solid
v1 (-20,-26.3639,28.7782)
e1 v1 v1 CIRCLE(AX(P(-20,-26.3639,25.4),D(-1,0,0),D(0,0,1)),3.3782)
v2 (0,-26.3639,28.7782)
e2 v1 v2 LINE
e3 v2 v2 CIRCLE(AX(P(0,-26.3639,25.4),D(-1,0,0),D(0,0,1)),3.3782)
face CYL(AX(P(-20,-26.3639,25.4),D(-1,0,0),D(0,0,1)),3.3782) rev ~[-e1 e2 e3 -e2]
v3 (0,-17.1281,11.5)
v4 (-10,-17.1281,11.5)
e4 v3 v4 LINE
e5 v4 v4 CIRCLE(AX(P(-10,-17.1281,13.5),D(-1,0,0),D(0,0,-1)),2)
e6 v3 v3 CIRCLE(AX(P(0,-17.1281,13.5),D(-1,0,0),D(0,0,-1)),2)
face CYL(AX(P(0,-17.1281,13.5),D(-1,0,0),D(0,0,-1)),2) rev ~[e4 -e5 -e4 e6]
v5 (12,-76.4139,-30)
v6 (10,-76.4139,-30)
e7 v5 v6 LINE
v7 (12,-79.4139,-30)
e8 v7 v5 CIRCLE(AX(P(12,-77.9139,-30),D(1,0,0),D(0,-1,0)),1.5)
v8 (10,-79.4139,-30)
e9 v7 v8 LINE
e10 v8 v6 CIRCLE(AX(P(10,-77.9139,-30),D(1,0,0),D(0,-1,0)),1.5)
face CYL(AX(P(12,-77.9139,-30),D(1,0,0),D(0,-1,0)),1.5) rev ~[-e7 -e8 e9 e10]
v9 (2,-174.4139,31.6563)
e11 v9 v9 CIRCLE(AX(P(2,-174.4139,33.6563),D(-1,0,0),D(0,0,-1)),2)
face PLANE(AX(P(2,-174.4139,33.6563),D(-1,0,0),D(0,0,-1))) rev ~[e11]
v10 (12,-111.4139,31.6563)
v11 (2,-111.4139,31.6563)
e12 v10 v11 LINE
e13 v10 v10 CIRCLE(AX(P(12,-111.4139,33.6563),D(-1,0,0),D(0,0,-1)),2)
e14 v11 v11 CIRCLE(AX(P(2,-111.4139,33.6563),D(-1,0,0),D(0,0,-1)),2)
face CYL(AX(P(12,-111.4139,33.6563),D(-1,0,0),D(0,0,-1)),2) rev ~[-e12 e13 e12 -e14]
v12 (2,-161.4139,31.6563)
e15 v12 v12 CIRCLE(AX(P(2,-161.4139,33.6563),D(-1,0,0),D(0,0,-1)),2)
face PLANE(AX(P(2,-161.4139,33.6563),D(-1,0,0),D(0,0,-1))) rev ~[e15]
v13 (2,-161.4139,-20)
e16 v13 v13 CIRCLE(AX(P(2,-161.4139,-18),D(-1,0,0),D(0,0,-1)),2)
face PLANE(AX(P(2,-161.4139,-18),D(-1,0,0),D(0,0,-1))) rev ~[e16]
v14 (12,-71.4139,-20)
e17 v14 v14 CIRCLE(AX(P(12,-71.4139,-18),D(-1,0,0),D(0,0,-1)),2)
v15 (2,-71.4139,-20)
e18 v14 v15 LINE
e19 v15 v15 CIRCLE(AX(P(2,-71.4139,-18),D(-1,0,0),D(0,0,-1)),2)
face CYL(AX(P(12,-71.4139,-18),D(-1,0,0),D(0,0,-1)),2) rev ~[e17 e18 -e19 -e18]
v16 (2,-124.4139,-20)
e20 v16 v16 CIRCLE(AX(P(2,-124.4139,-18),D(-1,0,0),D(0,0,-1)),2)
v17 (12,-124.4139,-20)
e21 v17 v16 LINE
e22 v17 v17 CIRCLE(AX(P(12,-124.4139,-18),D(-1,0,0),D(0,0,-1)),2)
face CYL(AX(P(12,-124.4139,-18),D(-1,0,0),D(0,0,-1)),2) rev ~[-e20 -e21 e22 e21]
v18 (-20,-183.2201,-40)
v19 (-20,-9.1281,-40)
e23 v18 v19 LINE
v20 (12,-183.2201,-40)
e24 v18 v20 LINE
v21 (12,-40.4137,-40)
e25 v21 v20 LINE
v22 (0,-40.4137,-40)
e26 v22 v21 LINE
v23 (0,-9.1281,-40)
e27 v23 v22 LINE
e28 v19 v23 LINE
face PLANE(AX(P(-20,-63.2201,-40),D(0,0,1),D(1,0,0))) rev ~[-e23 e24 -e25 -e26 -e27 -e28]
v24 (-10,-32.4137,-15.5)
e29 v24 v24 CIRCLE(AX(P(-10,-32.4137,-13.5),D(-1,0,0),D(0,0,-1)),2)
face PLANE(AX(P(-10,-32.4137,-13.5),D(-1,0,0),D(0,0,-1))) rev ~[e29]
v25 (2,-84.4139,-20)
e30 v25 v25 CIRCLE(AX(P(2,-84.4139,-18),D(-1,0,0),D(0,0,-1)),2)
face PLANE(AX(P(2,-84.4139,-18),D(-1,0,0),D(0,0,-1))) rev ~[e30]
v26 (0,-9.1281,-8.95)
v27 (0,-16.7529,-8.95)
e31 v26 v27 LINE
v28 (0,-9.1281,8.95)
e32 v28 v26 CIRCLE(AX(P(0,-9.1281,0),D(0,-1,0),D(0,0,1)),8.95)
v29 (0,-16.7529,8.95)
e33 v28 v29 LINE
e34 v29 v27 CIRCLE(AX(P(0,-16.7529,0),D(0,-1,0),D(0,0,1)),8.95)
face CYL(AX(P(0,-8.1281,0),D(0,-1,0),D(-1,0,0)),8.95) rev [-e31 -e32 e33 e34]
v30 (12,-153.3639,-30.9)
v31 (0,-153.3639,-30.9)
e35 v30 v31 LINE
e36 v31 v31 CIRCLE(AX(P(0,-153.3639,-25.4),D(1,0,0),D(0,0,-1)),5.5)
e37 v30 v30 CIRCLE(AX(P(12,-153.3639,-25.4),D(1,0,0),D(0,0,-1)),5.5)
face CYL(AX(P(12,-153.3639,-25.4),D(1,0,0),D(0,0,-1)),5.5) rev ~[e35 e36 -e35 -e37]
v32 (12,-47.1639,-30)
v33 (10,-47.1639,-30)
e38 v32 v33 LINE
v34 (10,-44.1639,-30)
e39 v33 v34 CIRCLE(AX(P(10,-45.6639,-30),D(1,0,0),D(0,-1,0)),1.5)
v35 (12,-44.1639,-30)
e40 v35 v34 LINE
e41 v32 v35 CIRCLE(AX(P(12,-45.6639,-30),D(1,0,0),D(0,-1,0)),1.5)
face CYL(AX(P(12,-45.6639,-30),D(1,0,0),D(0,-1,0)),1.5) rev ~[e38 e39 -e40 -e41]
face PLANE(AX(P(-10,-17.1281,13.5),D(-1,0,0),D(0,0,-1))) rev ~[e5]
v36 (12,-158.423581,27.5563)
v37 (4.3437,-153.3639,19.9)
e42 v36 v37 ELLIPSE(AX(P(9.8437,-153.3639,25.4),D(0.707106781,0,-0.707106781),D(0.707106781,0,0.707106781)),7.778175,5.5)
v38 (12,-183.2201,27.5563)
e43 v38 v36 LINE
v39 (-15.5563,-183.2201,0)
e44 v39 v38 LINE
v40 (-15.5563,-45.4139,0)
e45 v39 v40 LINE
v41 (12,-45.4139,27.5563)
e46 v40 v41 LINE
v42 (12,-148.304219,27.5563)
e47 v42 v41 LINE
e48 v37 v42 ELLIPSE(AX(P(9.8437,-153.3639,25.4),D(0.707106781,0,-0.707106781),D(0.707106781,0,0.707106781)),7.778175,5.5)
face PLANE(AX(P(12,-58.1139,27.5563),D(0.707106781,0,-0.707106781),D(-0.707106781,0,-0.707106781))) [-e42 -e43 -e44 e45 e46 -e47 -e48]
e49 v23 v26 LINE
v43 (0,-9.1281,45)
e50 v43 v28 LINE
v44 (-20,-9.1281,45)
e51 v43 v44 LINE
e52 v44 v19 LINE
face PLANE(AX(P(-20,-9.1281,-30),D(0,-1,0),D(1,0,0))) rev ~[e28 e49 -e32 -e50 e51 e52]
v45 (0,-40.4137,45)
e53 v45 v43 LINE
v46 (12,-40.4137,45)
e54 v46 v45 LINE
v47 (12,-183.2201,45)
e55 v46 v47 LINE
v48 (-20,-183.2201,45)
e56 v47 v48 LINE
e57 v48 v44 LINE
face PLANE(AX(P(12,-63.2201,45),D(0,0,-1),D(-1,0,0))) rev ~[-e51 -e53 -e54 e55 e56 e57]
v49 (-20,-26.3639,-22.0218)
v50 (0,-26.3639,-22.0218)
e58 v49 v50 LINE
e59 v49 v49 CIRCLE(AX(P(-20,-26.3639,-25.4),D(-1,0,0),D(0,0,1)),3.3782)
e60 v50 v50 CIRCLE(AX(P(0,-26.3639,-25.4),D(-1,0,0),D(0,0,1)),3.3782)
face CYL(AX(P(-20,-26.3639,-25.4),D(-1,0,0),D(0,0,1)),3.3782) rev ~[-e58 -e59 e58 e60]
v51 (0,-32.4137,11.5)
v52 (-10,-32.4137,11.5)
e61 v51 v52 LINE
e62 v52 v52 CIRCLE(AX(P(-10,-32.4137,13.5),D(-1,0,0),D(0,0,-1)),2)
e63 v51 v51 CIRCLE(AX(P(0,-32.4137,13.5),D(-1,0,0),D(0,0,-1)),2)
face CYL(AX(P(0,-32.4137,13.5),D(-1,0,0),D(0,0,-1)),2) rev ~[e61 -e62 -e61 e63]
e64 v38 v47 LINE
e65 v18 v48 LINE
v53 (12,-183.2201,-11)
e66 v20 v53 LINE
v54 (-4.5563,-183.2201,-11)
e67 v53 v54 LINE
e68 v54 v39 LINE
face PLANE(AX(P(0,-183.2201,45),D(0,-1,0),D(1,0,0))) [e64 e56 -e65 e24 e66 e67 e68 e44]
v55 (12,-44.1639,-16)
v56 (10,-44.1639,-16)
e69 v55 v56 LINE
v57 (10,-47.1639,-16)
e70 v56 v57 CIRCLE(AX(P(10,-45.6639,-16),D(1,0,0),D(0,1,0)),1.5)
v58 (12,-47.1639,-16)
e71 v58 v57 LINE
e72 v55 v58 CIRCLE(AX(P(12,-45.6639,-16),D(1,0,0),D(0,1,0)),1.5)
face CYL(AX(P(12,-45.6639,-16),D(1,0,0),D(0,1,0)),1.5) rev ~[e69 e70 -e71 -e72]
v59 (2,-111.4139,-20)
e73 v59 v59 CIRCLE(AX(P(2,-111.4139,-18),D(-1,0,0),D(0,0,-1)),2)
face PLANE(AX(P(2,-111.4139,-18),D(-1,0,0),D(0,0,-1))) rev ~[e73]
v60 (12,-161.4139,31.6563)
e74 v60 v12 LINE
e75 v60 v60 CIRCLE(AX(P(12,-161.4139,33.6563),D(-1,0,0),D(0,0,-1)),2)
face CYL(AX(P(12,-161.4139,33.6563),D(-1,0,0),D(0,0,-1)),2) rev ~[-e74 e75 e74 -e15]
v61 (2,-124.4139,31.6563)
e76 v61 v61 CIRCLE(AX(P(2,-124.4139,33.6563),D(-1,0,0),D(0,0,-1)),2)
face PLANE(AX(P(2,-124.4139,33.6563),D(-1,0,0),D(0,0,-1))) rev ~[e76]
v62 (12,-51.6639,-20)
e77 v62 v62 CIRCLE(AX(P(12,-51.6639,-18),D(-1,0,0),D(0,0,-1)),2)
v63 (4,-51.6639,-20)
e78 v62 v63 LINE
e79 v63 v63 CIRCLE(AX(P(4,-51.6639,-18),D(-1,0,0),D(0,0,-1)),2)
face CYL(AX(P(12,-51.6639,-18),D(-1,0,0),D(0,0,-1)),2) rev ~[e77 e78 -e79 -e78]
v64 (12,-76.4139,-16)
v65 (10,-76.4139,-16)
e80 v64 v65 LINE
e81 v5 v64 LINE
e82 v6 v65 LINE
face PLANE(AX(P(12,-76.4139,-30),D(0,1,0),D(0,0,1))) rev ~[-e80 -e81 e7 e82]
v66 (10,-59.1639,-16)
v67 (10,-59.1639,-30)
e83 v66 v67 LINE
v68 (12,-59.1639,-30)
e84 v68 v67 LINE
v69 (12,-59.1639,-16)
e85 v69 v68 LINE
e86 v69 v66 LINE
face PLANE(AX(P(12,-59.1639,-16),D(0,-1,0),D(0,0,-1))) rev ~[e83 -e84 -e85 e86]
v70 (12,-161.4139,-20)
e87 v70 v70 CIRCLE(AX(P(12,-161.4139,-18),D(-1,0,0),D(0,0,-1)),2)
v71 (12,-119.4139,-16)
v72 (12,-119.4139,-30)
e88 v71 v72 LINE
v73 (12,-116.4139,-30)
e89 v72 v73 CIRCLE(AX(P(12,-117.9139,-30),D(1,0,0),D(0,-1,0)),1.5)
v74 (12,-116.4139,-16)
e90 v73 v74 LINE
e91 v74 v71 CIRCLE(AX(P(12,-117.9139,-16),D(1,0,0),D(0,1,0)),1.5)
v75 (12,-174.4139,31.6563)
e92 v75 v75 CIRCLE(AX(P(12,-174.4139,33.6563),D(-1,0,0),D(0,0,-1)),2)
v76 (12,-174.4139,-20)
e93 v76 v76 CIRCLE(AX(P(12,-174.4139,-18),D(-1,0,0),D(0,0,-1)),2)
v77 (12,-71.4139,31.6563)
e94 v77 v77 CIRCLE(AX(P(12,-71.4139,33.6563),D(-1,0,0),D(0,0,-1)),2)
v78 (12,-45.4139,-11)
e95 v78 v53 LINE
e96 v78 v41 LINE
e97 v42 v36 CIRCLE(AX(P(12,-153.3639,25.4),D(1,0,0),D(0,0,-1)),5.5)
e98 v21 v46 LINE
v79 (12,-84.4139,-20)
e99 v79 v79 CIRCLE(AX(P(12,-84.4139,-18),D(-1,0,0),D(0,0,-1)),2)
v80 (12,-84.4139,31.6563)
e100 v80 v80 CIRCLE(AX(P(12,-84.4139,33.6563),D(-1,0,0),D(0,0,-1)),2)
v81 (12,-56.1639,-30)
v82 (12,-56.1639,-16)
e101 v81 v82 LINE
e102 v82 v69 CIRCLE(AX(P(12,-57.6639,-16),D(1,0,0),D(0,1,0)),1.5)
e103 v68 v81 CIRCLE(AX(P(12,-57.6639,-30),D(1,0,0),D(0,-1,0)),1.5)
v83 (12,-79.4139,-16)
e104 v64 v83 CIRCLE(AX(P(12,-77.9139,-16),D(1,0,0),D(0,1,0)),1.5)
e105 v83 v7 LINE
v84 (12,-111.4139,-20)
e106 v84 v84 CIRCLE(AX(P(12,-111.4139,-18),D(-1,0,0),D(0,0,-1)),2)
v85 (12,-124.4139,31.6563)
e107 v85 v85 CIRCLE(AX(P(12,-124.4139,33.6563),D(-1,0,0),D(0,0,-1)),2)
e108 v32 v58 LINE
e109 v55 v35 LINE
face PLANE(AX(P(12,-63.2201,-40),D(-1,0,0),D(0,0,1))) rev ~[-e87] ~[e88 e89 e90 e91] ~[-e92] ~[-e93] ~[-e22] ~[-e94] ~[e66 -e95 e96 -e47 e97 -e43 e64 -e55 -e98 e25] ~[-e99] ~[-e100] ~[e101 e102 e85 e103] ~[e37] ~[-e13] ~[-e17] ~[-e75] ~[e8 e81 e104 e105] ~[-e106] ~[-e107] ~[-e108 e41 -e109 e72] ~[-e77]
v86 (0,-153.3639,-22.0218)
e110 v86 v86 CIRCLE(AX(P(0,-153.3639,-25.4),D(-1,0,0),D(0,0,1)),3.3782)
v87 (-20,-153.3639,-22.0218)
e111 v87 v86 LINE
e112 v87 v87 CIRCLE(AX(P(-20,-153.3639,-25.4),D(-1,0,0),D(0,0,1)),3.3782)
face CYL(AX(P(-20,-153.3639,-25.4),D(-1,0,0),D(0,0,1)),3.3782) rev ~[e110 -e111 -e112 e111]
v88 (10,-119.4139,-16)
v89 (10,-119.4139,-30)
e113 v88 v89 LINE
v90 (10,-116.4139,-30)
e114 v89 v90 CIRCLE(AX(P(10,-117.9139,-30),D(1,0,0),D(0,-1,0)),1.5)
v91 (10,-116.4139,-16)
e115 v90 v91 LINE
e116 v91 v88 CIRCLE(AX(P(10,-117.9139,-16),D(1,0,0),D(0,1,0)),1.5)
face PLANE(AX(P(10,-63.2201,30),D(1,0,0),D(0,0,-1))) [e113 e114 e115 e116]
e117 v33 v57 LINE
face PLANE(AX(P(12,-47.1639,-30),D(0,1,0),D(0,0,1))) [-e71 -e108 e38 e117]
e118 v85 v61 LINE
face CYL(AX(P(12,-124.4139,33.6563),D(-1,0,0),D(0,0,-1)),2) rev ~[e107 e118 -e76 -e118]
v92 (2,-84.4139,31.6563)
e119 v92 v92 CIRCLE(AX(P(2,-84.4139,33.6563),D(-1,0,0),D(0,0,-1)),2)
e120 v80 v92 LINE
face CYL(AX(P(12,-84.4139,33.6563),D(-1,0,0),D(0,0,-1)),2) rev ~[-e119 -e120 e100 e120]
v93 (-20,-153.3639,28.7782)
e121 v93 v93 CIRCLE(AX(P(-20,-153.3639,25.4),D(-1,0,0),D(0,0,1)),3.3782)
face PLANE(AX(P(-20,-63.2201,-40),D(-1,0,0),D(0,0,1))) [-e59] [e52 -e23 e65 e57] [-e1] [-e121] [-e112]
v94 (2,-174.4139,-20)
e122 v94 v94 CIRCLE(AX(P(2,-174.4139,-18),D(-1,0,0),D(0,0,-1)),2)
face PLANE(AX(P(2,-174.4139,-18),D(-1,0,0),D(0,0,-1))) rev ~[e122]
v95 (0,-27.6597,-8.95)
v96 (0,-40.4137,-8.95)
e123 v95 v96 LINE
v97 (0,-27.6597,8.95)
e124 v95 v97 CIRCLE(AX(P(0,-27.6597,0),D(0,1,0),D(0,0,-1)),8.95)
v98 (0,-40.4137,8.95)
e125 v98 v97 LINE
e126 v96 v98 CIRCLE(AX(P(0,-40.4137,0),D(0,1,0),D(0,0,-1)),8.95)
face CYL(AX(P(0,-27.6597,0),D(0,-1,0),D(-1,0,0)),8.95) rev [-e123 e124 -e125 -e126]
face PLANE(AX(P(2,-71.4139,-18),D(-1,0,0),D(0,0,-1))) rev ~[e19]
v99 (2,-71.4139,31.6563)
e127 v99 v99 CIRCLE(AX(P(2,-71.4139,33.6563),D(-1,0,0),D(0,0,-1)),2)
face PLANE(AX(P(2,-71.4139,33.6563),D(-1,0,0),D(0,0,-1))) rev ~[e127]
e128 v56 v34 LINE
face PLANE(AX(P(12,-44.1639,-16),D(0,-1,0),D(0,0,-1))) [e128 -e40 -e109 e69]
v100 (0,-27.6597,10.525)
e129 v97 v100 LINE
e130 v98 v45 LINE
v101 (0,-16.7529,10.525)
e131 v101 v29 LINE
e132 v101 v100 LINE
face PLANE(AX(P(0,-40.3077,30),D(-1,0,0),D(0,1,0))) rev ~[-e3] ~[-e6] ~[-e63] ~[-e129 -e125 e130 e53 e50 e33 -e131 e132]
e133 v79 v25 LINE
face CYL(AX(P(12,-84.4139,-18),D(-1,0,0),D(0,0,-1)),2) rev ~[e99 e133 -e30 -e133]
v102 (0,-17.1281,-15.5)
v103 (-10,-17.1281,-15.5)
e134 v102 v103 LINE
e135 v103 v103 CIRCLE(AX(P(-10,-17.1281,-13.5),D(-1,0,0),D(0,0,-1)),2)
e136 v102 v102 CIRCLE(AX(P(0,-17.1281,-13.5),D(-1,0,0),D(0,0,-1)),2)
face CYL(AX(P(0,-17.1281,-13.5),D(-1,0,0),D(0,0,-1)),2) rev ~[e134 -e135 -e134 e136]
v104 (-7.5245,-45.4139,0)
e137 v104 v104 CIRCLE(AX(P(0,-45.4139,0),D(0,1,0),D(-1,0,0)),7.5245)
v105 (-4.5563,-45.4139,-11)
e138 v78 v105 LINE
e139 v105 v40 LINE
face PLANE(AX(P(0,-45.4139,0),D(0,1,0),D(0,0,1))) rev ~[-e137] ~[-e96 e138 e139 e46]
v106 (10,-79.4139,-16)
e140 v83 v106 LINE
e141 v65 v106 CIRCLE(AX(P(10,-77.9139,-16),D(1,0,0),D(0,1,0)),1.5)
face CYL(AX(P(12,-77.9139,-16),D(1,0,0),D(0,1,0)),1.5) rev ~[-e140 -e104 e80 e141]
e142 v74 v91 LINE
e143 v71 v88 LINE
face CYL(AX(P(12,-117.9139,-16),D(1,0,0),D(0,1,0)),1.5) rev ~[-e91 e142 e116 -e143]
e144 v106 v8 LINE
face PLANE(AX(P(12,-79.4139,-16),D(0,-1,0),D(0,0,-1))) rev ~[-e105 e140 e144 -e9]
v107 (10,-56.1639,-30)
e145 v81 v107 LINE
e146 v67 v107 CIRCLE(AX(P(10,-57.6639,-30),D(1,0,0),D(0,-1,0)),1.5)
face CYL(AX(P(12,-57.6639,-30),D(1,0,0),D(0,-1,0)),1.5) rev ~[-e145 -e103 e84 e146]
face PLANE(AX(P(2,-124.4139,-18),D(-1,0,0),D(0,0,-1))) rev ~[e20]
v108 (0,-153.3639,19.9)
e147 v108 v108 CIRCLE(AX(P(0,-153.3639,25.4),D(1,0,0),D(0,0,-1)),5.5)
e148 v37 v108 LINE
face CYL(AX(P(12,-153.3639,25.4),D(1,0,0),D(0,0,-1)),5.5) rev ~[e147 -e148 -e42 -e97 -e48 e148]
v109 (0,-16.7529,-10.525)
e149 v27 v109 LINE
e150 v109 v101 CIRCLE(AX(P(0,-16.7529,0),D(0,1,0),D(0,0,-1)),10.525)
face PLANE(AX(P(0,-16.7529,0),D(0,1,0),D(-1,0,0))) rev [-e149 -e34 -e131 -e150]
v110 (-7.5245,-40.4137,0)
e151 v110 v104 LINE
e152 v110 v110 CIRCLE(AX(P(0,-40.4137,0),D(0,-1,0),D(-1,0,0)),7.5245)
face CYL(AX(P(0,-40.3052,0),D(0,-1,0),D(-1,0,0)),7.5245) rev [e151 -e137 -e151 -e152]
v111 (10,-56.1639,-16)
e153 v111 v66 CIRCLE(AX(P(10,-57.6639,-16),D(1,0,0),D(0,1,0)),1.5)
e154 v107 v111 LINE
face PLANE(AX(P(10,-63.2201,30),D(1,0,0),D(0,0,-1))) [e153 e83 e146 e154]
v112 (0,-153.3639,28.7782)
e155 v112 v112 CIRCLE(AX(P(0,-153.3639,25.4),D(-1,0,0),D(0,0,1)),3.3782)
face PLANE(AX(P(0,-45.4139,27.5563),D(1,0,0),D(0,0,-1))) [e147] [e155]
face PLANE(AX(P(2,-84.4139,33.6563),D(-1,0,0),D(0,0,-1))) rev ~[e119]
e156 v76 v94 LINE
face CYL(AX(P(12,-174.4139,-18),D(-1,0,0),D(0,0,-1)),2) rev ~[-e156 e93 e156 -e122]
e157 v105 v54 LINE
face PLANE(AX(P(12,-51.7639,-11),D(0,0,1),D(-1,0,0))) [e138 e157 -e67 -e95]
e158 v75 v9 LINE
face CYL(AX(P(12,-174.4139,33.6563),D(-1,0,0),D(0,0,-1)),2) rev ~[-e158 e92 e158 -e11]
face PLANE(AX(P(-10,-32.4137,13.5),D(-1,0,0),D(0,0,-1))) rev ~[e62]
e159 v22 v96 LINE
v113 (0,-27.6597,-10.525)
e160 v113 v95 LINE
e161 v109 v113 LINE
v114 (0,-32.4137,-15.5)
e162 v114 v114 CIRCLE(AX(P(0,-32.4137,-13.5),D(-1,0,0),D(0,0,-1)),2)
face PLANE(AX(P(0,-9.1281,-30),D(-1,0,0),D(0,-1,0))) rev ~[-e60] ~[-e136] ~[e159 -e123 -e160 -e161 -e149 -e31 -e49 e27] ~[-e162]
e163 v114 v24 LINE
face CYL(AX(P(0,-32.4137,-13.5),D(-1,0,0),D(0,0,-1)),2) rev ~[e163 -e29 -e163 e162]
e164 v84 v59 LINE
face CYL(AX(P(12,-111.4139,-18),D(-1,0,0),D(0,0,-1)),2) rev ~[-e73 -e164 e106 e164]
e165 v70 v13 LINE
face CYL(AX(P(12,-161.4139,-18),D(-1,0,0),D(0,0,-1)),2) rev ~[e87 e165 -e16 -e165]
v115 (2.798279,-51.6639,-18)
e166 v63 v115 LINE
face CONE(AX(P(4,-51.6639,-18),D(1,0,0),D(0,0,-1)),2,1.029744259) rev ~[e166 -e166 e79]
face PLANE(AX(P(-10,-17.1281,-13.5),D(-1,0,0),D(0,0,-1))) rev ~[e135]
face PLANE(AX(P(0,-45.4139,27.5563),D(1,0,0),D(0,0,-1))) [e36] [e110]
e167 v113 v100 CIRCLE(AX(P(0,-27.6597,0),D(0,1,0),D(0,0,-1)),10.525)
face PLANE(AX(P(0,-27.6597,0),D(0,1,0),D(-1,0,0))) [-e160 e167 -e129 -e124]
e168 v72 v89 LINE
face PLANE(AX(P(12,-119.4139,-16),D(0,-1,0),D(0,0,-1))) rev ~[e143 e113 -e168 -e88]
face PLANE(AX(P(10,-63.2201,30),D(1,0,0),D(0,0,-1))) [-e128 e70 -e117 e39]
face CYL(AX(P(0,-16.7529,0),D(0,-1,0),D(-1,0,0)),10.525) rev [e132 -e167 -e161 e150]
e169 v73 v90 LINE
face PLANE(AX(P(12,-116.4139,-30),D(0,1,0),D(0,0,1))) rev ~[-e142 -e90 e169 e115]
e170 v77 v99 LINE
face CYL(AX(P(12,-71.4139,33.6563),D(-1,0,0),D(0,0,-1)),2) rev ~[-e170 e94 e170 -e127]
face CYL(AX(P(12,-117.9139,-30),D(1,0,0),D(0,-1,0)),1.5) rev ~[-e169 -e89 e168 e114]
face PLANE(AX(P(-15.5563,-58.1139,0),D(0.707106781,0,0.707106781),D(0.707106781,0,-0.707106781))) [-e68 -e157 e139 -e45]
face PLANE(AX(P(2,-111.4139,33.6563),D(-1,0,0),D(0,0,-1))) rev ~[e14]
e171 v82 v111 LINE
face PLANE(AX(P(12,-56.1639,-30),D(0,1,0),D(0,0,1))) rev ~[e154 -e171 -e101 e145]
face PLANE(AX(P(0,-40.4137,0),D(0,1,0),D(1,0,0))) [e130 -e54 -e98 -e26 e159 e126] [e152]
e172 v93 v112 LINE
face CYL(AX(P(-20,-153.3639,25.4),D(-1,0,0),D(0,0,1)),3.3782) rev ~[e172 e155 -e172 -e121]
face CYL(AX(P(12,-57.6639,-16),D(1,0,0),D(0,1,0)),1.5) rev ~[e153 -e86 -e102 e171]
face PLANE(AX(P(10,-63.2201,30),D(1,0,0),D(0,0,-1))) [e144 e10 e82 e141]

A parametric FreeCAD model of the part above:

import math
import FreeCAD as App
import Part
import Sketcher
from FreeCAD import Vector
Q = App.Units.Quantity


def add_polygon(sketch, points):
    """Adds a closed chain of lines whose ends are joined by coincident constraints."""
    first, n = sketch.GeometryCount, len(points)
    for a, b in zip(points, points[1:] + points[:1]):
        sketch.addGeometry(Part.LineSegment(App.Vector(*a, 0), App.Vector(*b, 0)), False)
    for i in range(n):
        sketch.addConstraint(Sketcher.Constraint("Coincident", first + i, 2, first + (i + 1) % n, 1))

doc = App.newDocument("Part")
body = doc.addObject("PartDesign::Body", "Body")

# Sketch on XY plane
sketch1 = body.newObject("Sketcher::SketchObject", "Sketch")
sketch1.AttachmentSupport = (doc.getObject("XY_Plane"), [""])
sketch1.MapMode = "FlatFace"
add_polygon(sketch1, [(0, -9), (-20, -9), (-20, -89), (0, -89), (0, -63), (12, -63), (12, -40), (0, -40)])  # lines 0-7
sketch1.addConstraint(Sketcher.Constraint("Horizontal", 0))
sketch1.addConstraint(Sketcher.Constraint("Vertical", 1))
sketch1.addConstraint(Sketcher.Constraint("Horizontal", 2))
sketch1.addConstraint(Sketcher.Constraint("Vertical", 3))
sketch1.addConstraint(Sketcher.Constraint("Horizontal", 4))
sketch1.addConstraint(Sketcher.Constraint("Vertical", 5))
sketch1.addConstraint(Sketcher.Constraint("Horizontal", 6))
sketch1.addConstraint(Sketcher.Constraint("Vertical", 7))
sketch1.addConstraint(Sketcher.Constraint("PointOnObject", 2, 2, -2))
sketch1.addConstraint(Sketcher.Constraint("PointOnObject", 6, 2, -2))
sketch1.addConstraint(Sketcher.Constraint("DistanceX", 0, 2, 0, 1, 20.0))
sketch1.addConstraint(Sketcher.Constraint("DistanceX", 4, 1, 4, 2, 12.0))
sketch1.addConstraint(Sketcher.Constraint("DistanceY", 1, 2, 1, 1, 80.0))
sketch1.addConstraint(Sketcher.Constraint("DistanceY", 3, 1, 3, 2, 25.908))
sketch1.addConstraint(Sketcher.Constraint("DistanceY", 3, 2, -1, 1, 63.22))
sketch1.addConstraint(Sketcher.Constraint("DistanceY", 5, 1, 5, 2, 22.9124))
pad1 = body.newObject("PartDesign::Pad", "Pad")
pad1.Profile = sketch1
pad1.Length = 60
pad1.Midplane = True

# Sketch on XZ plane
sketch2 = body.newObject("Sketcher::SketchObject", "Sketch001")
sketch2.AttachmentSupport = (doc.getObject("XZ_Plane"), [""])
sketch2.MapMode = "FlatFace"
sketch2.AttachmentOffset = App.Placement(Vector(0, 0, 51.7639), App.Rotation())
add_polygon(sketch2, [(12, 28), (12, -11), (-5, -11), (-16, 0)])  # lines 0-3
sketch2.addConstraint(Sketcher.Constraint("Vertical", 0))
sketch2.addConstraint(Sketcher.Constraint("Horizontal", 1))
sketch2.addConstraint(Sketcher.Constraint("PointOnObject", 2, 2, -1))
sketch2.addConstraint(Sketcher.Constraint("Perpendicular", 2, 3))
sketch2.addConstraint(Sketcher.Constraint("Angle", 2, Q("135 deg")))
sketch2.addConstraint(Sketcher.Constraint("DistanceX", -1, 1, 0, 2, 12.0))
sketch2.addConstraint(Sketcher.Constraint("DistanceY", 0, 2, -1, 1, 11.0))
sketch2.addConstraint(Sketcher.Constraint("DistanceX", 1, 2, 1, 1, 16.5563))
pocket1 = body.newObject("PartDesign::Pocket", "Pocket")
pocket1.Profile = sketch2
pocket1.Length = 12.7
pocket1.Midplane = True

# Sketch on XY plane
sketch3 = body.newObject("Sketcher::SketchObject", "Sketch002")
sketch3.AttachmentSupport = (doc.getObject("XY_Plane"), [""])
sketch3.MapMode = "FlatFace"
add_polygon(sketch3, [(0, -8.1), (-8.9, -8.1), (-8.9, -16.8), (-10.5, -16.8), (-10.5, -27.7), (-8.9, -27.7), (-8.9, -40.3), (-7.5, -40.3), (-7.5, -45.4), (0, -45.4)])  # lines 0-9
sketch3.addConstraint(Sketcher.Constraint("Horizontal", 0))
sketch3.addConstraint(Sketcher.Constraint("Vertical", 1))
sketch3.addConstraint(Sketcher.Constraint("Horizontal", 2))
sketch3.addConstraint(Sketcher.Constraint("Vertical", 3))
sketch3.addConstraint(Sketcher.Constraint("Horizontal", 4))
sketch3.addConstraint(Sketcher.Constraint("Vertical", 5))
sketch3.addConstraint(Sketcher.Constraint("Horizontal", 6))
sketch3.addConstraint(Sketcher.Constraint("Vertical", 7))
sketch3.addConstraint(Sketcher.Constraint("Horizontal", 8))
sketch3.addConstraint(Sketcher.Constraint("Vertical", 9))
sketch3.addConstraint(Sketcher.Constraint("PointOnObject", 8, 2, -2))
sketch3.addConstraint(Sketcher.Constraint("Vertical", 1, 2, 4, 2))
sketch3.addConstraint(Sketcher.Constraint("DistanceX", 6, 1, 6, 2, 1.4255))
sketch3.addConstraint(Sketcher.Constraint("DistanceX", 0, 2, 0, 1, 8.95))
sketch3.addConstraint(Sketcher.Constraint("DistanceX", 2, 2, 2, 1, 1.575))
sketch3.addConstraint(Sketcher.Constraint("DistanceY", 1, 2, 1, 1, 8.6248))
sketch3.addConstraint(Sketcher.Constraint("DistanceY", 3, 2, 3, 1, 10.9068))
sketch3.addConstraint(Sketcher.Constraint("DistanceY", 5, 2, 5, 1, 12.6455))
sketch3.addConstraint(Sketcher.Constraint("DistanceY", 7, 2, 7, 1, 5.1087))
sketch3.addConstraint(Sketcher.Constraint("DistanceY", 0, 2, -1, 1, 8.128))
groove = body.newObject("PartDesign::Groove", "Groove")
groove.Profile = sketch3
groove.ReferenceAxis = (sketch3, ["V_Axis"])
groove.Angle = 360

# Sketch on XY plane
sketch4 = body.newObject("Sketcher::SketchObject", "Sketch003")
sketch4.AttachmentSupport = (doc.getObject("XY_Plane"), [""])
sketch4.MapMode = "FlatFace"
sketch4.AttachmentOffset = App.Placement(Vector(0, 0, 30), App.Rotation())
add_polygon(sketch4, [(-20, -9), (-20, -89), (0, -89), (0, -63), (12, -63), (12, -40), (0, -40), (0, -9)])  # lines 0-7
sketch4.addConstraint(Sketcher.Constraint("Vertical", 0))
sketch4.addConstraint(Sketcher.Constraint("Horizontal", 1))
sketch4.addConstraint(Sketcher.Constraint("Vertical", 2))
sketch4.addConstraint(Sketcher.Constraint("Horizontal", 3))
sketch4.addConstraint(Sketcher.Constraint("Vertical", 4))
sketch4.addConstraint(Sketcher.Constraint("Horizontal", 5))
sketch4.addConstraint(Sketcher.Constraint("Vertical", 6))
sketch4.addConstraint(Sketcher.Constraint("Horizontal", 7))
sketch4.addConstraint(Sketcher.Constraint("PointOnObject", 1, 2, -2))
sketch4.addConstraint(Sketcher.Constraint("PointOnObject", 5, 2, -2))
sketch4.addConstraint(Sketcher.Constraint("DistanceX", 1, 1, 1, 2, 20.0))
sketch4.addConstraint(Sketcher.Constraint("DistanceX", 3, 1, 3, 2, 12.0))
sketch4.addConstraint(Sketcher.Constraint("DistanceY", 0, 2, 0, 1, 80.0))
sketch4.addConstraint(Sketcher.Constraint("DistanceY", 2, 1, 2, 2, 25.908))
sketch4.addConstraint(Sketcher.Constraint("DistanceY", 2, 2, -1, 1, 63.22))
sketch4.addConstraint(Sketcher.Constraint("DistanceY", 4, 1, 4, 2, 22.9124))
pad2 = body.newObject("PartDesign::Pad", "Pad001")
pad2.Profile = sketch4
pad2.Length = 15

# Sketch on XY plane
sketch5 = body.newObject("Sketcher::SketchObject", "Sketch004")
sketch5.AttachmentSupport = (doc.getObject("XY_Plane"), [""])
sketch5.MapMode = "FlatFace"
sketch5.AttachmentOffset = App.Placement(Vector(0, 0, -30), App.Rotation())
add_polygon(sketch5, [(0, -63), (0, -89), (-20, -89), (-20, -9), (0, -9), (0, -40), (12, -40), (12, -63)])  # lines 0-7
sketch5.addConstraint(Sketcher.Constraint("Vertical", 0))
sketch5.addConstraint(Sketcher.Constraint("Horizontal", 1))
sketch5.addConstraint(Sketcher.Constraint("Vertical", 2))
sketch5.addConstraint(Sketcher.Constraint("Horizontal", 3))
sketch5.addConstraint(Sketcher.Constraint("Vertical", 4))
sketch5.addConstraint(Sketcher.Constraint("Horizontal", 5))
sketch5.addConstraint(Sketcher.Constraint("Vertical", 6))
sketch5.addConstraint(Sketcher.Constraint("Horizontal", 7))
sketch5.addConstraint(Sketcher.Constraint("PointOnObject", 0, 2, -2))
sketch5.addConstraint(Sketcher.Constraint("PointOnObject", 3, 2, -2))
sketch5.addConstraint(Sketcher.Constraint("DistanceX", 1, 2, 1, 1, 20.0))
sketch5.addConstraint(Sketcher.Constraint("DistanceX", 5, 1, 5, 2, 12.0))
sketch5.addConstraint(Sketcher.Constraint("DistanceY", 2, 1, 2, 2, 80.0))
sketch5.addConstraint(Sketcher.Constraint("DistanceY", 0, 2, 0, 1, 25.908))
sketch5.addConstraint(Sketcher.Constraint("DistanceY", 6, 2, -1, 1, 63.22))
sketch5.addConstraint(Sketcher.Constraint("DistanceY", 4, 2, 4, 1, 31.1796))
pad3 = body.newObject("PartDesign::Pad", "Pad002")
pad3.Profile = sketch5
pad3.Length = 10
pad3.Reversed = True

# Sketch on XZ plane
sketch6 = body.newObject("Sketcher::SketchObject", "Sketch005")
sketch6.AttachmentSupport = (doc.getObject("XZ_Plane"), [""])
sketch6.MapMode = "FlatFace"
sketch6.AttachmentOffset = App.Placement(Vector(0, 0, 63.2201), App.Rotation())
add_polygon(sketch6, [(-20, -40), (12, -40), (12, 45), (-20, 45)])  # lines 0-3
sketch6.addConstraint(Sketcher.Constraint("Horizontal", 0))
sketch6.addConstraint(Sketcher.Constraint("Vertical", 1))
sketch6.addConstraint(Sketcher.Constraint("Horizontal", 2))
sketch6.addConstraint(Sketcher.Constraint("Vertical", 3))
sketch6.addConstraint(Sketcher.Constraint("DistanceX", 0, 1, 0, 2, 32.0))
sketch6.addConstraint(Sketcher.Constraint("DistanceY", 1, 1, 1, 2, 85.0))
sketch6.addConstraint(Sketcher.Constraint("DistanceX", -1, 1, 0, 2, 12.0))
sketch6.addConstraint(Sketcher.Constraint("DistanceY", 0, 2, -1, 1, 40.0))
pad4 = body.newObject("PartDesign::Pad", "Pad003")
pad4.Profile = sketch6
pad4.Length = 120

# Sketch on XZ plane
sketch7 = body.newObject("Sketcher::SketchObject", "Sketch006")
sketch7.AttachmentSupport = (doc.getObject("XZ_Plane"), [""])
sketch7.MapMode = "FlatFace"
sketch7.AttachmentOffset = App.Placement(Vector(0, 0, 58.1139), App.Rotation())
add_polygon(sketch7, [(12, -11), (-5, -11), (-16, 0), (12, 28)])  # lines 0-3
sketch7.addConstraint(Sketcher.Constraint("Horizontal", 0))
sketch7.addConstraint(Sketcher.Constraint("Vertical", 3))
sketch7.addConstraint(Sketcher.Constraint("PointOnObject", 1, 2, -1))
sketch7.addConstraint(Sketcher.Constraint("Perpendicular", 1, 2))
sketch7.addConstraint(Sketcher.Constraint("Angle", 1, Q("135 deg")))
sketch7.addConstraint(Sketcher.Constraint("DistanceY", 0, 2, -1, 1, 11.0))
sketch7.addConstraint(Sketcher.Constraint("DistanceX", -1, 1, 2, 2, 12.0))
sketch7.addConstraint(Sketcher.Constraint("DistanceX", 0, 2, 0, 1, 16.5563))
pocket2 = body.newObject("PartDesign::Pocket", "Pocket001")
pocket2.Profile = sketch7
pocket2.Type = "ThroughAll"
pocket2.Reversed = True

# Sketch on YZ plane
sketch8 = body.newObject("Sketcher::SketchObject", "Sketch007")
sketch8.AttachmentSupport = (doc.getObject("YZ_Plane"), [""])
sketch8.MapMode = "FlatFace"
sketch8.AttachmentOffset = App.Placement(Vector(0, 0, -20), App.Rotation())
sketch8.addGeometry(Part.Circle(Vector(-26.4, 25.4, 0), Vector(0, 0, 1), 3.4), False)
sketch8.addGeometry(Part.Circle(Vector(-153.4, 25.4, 0), Vector(0, 0, 1), 3.4), False)
sketch8.addGeometry(Part.Circle(Vector(-26.4, -25.4, 0), Vector(0, 0, 1), 3.4), False)
sketch8.addGeometry(Part.Circle(Vector(-153.4, -25.4, 0), Vector(0, 0, 1), 3.4), False)
sketch8.addConstraint(Sketcher.Constraint("Equal", 0, 1))
sketch8.addConstraint(Sketcher.Constraint("Equal", 1, 2))
sketch8.addConstraint(Sketcher.Constraint("Equal", 2, 3))
sketch8.addConstraint(Sketcher.Constraint("Symmetric", 0, 3, 2, 3, -1))
sketch8.addConstraint(Sketcher.Constraint("Symmetric", 1, 3, 3, 3, -1))
sketch8.addConstraint(Sketcher.Constraint("Horizontal", 0, 3, 1, 3))
sketch8.addConstraint(Sketcher.Constraint("Diameter", 0, 6.7564))
sketch8.addConstraint(Sketcher.Constraint("DistanceY", -1, 1, 0, 3, 25.4))
sketch8.addConstraint(Sketcher.Constraint("DistanceX", 1, 3, 0, 3, 127.0))
sketch8.addConstraint(Sketcher.Constraint("DistanceX", 0, 3, -1, 1, 26.364))
pocket3 = body.newObject("PartDesign::Pocket", "Pocket002")
pocket3.Profile = sketch8
pocket3.Type = "ThroughAll"
pocket3.Reversed = True

# Sketch on YZ plane
sketch9 = body.newObject("Sketcher::SketchObject", "Sketch008")
sketch9.AttachmentSupport = (doc.getObject("YZ_Plane"), [""])
sketch9.MapMode = "FlatFace"
sketch9.AttachmentOffset = App.Placement(Vector(0, 0, 12), App.Rotation())
sketch9.addGeometry(Part.Circle(Vector(-153, -25, 0), Vector(0, 0, 1), 6), False)
sketch9.addGeometry(Part.Circle(Vector(-153, 25, 0), Vector(0, 0, 1), 6), False)
sketch9.addConstraint(Sketcher.Constraint("Equal", 0, 1))
sketch9.addConstraint(Sketcher.Constraint("Symmetric", 0, 3, 1, 3, -1))
sketch9.addConstraint(Sketcher.Constraint("Diameter", 0, 11.0))
sketch9.addConstraint(Sketcher.Constraint("DistanceY", 0, 3, -1, 1, 25.4))
sketch9.addConstraint(Sketcher.Constraint("DistanceX", 0, 3, -1, 1, 153.364))
pocket4 = body.newObject("PartDesign::Pocket", "Pocket003")
pocket4.Profile = sketch9
pocket4.Length = 12

# Sketch on YZ plane
sketch10 = body.newObject("Sketcher::SketchObject", "Sketch009")
sketch10.AttachmentSupport = (doc.getObject("YZ_Plane"), [""])
sketch10.MapMode = "FlatFace"
sketch10.AttachmentOffset = App.Placement(Vector(0, 0, 12), App.Rotation())
sketch10.addGeometry(Part.Circle(Vector(-161.4, 33.7, 0), Vector(0, 0, 1), 2), False)
sketch10.addGeometry(Part.Circle(Vector(-174.4, 33.7, 0), Vector(0, 0, 1), 2), False)
sketch10.addGeometry(Part.Circle(Vector(-111.4, 33.7, 0), Vector(0, 0, 1), 2), False)
sketch10.addGeometry(Part.Circle(Vector(-124.4, 33.7, 0), Vector(0, 0, 1), 2), False)
sketch10.addGeometry(Part.Circle(Vector(-71.4, 33.7, 0), Vector(0, 0, 1), 2), False)
sketch10.addGeometry(Part.Circle(Vector(-84.4, 33.7, 0), Vector(0, 0, 1), 2), False)
sketch10.addGeometry(Part.Circle(Vector(-71.4, -18, 0), Vector(0, 0, 1), 2), False)
sketch10.addGeometry(Part.Circle(Vector(-84.4, -18, 0), Vector(0, 0, 1), 2), False)
sketch10.addGeometry(Part.Circle(Vector(-111.4, -18, 0), Vector(0, 0, 1), 2), False)
sketch10.addGeometry(Part.Circle(Vector(-124.4, -18, 0), Vector(0, 0, 1), 2), False)
sketch10.addGeometry(Part.Circle(Vector(-161.4, -18, 0), Vector(0, 0, 1), 2), False)
sketch10.addGeometry(Part.Circle(Vector(-174.4, -18, 0), Vector(0, 0, 1), 2), False)
sketch10.addConstraint(Sketcher.Constraint("Equal", 0, 1))
sketch10.addConstraint(Sketcher.Constraint("Equal", 1, 2))
sketch10.addConstraint(Sketcher.Constraint("Equal", 2, 3))
sketch10.addConstraint(Sketcher.Constraint("Equal", 3, 4))
sketch10.addConstraint(Sketcher.Constraint("Equal", 4, 5))
sketch10.addConstraint(Sketcher.Constraint("Equal", 5, 6))
sketch10.addConstraint(Sketcher.Constraint("Equal", 6, 7))
sketch10.addConstraint(Sketcher.Constraint("Equal", 7, 8))
sketch10.addConstraint(Sketcher.Constraint("Equal", 8, 9))
sketch10.addConstraint(Sketcher.Constraint("Equal", 9, 10))
sketch10.addConstraint(Sketcher.Constraint("Equal", 10, 11))
sketch10.addConstraint(Sketcher.Constraint("Horizontal", 0, 3, 1, 3))
sketch10.addConstraint(Sketcher.Constraint("Horizontal", 1, 3, 2, 3))
sketch10.addConstraint(Sketcher.Constraint("Horizontal", 2, 3, 3, 3))
sketch10.addConstraint(Sketcher.Constraint("Horizontal", 3, 3, 4, 3))
sketch10.addConstraint(Sketcher.Constraint("Horizontal", 4, 3, 5, 3))
sketch10.addConstraint(Sketcher.Constraint("Horizontal", 6, 3, 7, 3))
sketch10.addConstraint(Sketcher.Constraint("Horizontal", 7, 3, 8, 3))
sketch10.addConstraint(Sketcher.Constraint("Horizontal", 8, 3, 9, 3))
sketch10.addConstraint(Sketcher.Constraint("Horizontal", 9, 3, 10, 3))
sketch10.addConstraint(Sketcher.Constraint("Horizontal", 10, 3, 11, 3))
sketch10.addConstraint(Sketcher.Constraint("Vertical", 4, 3, 6, 3))
sketch10.addConstraint(Sketcher.Constraint("Vertical", 5, 3, 7, 3))
sketch10.addConstraint(Sketcher.Constraint("Vertical", 2, 3, 8, 3))
sketch10.addConstraint(Sketcher.Constraint("Vertical", 3, 3, 9, 3))
sketch10.addConstraint(Sketcher.Constraint("Vertical", 0, 3, 10, 3))
sketch10.addConstraint(Sketcher.Constraint("Vertical", 1, 3, 11, 3))
sketch10.addConstraint(Sketcher.Constraint("Diameter", 0, 4.0))
sketch10.addConstraint(Sketcher.Constraint("DistanceY", 6, 3, -1, 1, 18.0))
sketch10.addConstraint(Sketcher.Constraint("DistanceX", 1, 3, 0, 3, 13.0))
sketch10.addConstraint(Sketcher.Constraint("DistanceX", 0, 3, 2, 3, 50.0))
sketch10.addConstraint(Sketcher.Constraint("DistanceX", 3, 3, 2, 3, 13.0))
sketch10.addConstraint(Sketcher.Constraint("DistanceX", 2, 3, 4, 3, 40.0))
sketch10.addConstraint(Sketcher.Constraint("DistanceX", 5, 3, 4, 3, 13.0))
sketch10.addConstraint(Sketcher.Constraint("DistanceX", 0, 3, -1, 1, 161.414))
sketch10.addConstraint(Sketcher.Constraint("DistanceY", -1, 1, 0, 3, 33.6563))
doc.recompute()
hole = body.newObject("PartDesign::Hole", "Hole")
hole.Profile = sketch10
hole.ThreadType = "None"
hole.Diameter = 4
hole.DepthType = "Dimension"
hole.Depth = 10
hole.DrillPoint = "Flat"

# Sketch on XZ plane
sketch11 = body.newObject("Sketcher::SketchObject", "Sketch010")
sketch11.AttachmentSupport = (doc.getObject("XZ_Plane"), [""])
sketch11.MapMode = "FlatFace"
sketch11.AttachmentOffset = App.Placement(Vector(0, 0, 40.3077), App.Rotation())
sketch11.addGeometry(Part.LineSegment(Vector(0, -40, 0), Vector(0, -9, 0)), False)
sketch11.addGeometry(Part.ArcOfCircle(Part.Circle(Vector(0, 0, 0), Vector(0, 0, 1), 9), math.radians(90), math.radians(270)), False)
sketch11.addGeometry(Part.LineSegment(Vector(0, 9, 0), Vector(0, 45, 0)), False)
sketch11.addGeometry(Part.LineSegment(Vector(0, 45, 0), Vector(12, 45, 0)), False)
sketch11.addGeometry(Part.LineSegment(Vector(12, 45, 0), Vector(12, -40, 0)), False)
sketch11.addGeometry(Part.LineSegment(Vector(12, -40, 0), Vector(0, -40, 0)), False)
sketch11.addGeometry(Part.Circle(Vector(0, 0, 0), Vector(0, 0, 1), 8), False)
sketch11.addConstraint(Sketcher.Constraint("Coincident", 0, 2, 1, 2))
sketch11.addConstraint(Sketcher.Constraint("Coincident", 1, 1, 2, 1))
sketch11.addConstraint(Sketcher.Constraint("Coincident", 2, 2, 3, 1))
sketch11.addConstraint(Sketcher.Constraint("Coincident", 3, 2, 4, 1))
sketch11.addConstraint(Sketcher.Constraint("Coincident", 4, 2, 5, 1))
sketch11.addConstraint(Sketcher.Constraint("Coincident", 5, 2, 0, 1))
sketch11.addConstraint(Sketcher.Constraint("Vertical", 0))
sketch11.addConstraint(Sketcher.Constraint("Vertical", 2))
sketch11.addConstraint(Sketcher.Constraint("Horizontal", 3))
sketch11.addConstraint(Sketcher.Constraint("Vertical", 4))
sketch11.addConstraint(Sketcher.Constraint("Horizontal", 5))
sketch11.addConstraint(Sketcher.Constraint("Coincident", 1, 3, -1, 1))
sketch11.addConstraint(Sketcher.Constraint("Coincident", 6, 3, -1, 1))
sketch11.addConstraint(Sketcher.Constraint("PointOnObject", 0, 2, -2))
sketch11.addConstraint(Sketcher.Constraint("PointOnObject", 1, 1, -2))
sketch11.addConstraint(Sketcher.Constraint("DistanceX", 3, 1, 3, 2, 12.0))
sketch11.addConstraint(Sketcher.Constraint("DistanceY", 4, 2, 4, 1, 85.0))
sketch11.addConstraint(Sketcher.Constraint("Radius", 1, 8.95))
sketch11.addConstraint(Sketcher.Constraint("Diameter", 6, 15.049))
sketch11.addConstraint(Sketcher.Constraint("DistanceY", -1, 1, 2, 2, 45.0))
pocket5 = body.newObject("PartDesign::Pocket", "Pocket004")
pocket5.Profile = sketch11
pocket5.Type = "TwoLengths"
pocket5.Length = 0.1
pocket5.Length2 = 0.106

# Sketch on YZ plane
sketch12 = body.newObject("Sketcher::SketchObject", "Sketch011")
sketch12.AttachmentSupport = (doc.getObject("YZ_Plane"), [""])
sketch12.MapMode = "FlatFace"
sketch12.addGeometry(Part.Circle(Vector(-17.1, 13.5, 0), Vector(0, 0, 1), 2), False)
sketch12.addGeometry(Part.Circle(Vector(-32.4, 13.5, 0), Vector(0, 0, 1), 2), False)
sketch12.addGeometry(Part.Circle(Vector(-32.4, -13.5, 0), Vector(0, 0, 1), 2), False)
sketch12.addGeometry(Part.Circle(Vector(-17.1, -13.5, 0), Vector(0, 0, 1), 2), False)
sketch12.addConstraint(Sketcher.Constraint("Equal", 0, 1))
sketch12.addConstraint(Sketcher.Constraint("Equal", 1, 2))
sketch12.addConstraint(Sketcher.Constraint("Equal", 2, 3))
sketch12.addConstraint(Sketcher.Constraint("Symmetric", 1, 3, 2, 3, -1))
sketch12.addConstraint(Sketcher.Constraint("Symmetric", 0, 3, 3, 3, -1))
sketch12.addConstraint(Sketcher.Constraint("Horizontal", 0, 3, 1, 3))
sketch12.addConstraint(Sketcher.Constraint("Diameter", 0, 4.0))
sketch12.addConstraint(Sketcher.Constraint("DistanceY", 2, 3, 1, 3, 27.0))
sketch12.addConstraint(Sketcher.Constraint("DistanceX", 0, 3, -1, 1, 17.128))
sketch12.addConstraint(Sketcher.Constraint("DistanceX", 1, 3, -1, 1, 32.4137))
doc.recompute()
hole2 = body.newObject("PartDesign::Hole", "Hole001")
hole2.Profile = sketch12
hole2.ThreadType = "None"
hole2.Diameter = 4
hole2.DepthType = "Dimension"
hole2.Depth = 10
hole2.DrillPoint = "Flat"

# Sketch on YZ plane
sketch13 = body.newObject("Sketcher::SketchObject", "Sketch012")
sketch13.AttachmentSupport = (doc.getObject("YZ_Plane"), [""])
sketch13.MapMode = "FlatFace"
sketch13.AttachmentOffset = App.Placement(Vector(0, 0, 12), App.Rotation())
sketch13.addGeometry(Part.ArcOfCircle(Part.Circle(Vector(-57.7, -16, 0), Vector(0, 0, 1), 1.5), math.radians(0), math.radians(180)), False)
sketch13.addGeometry(Part.LineSegment(Vector(-59.2, -16, 0), Vector(-59.2, -30, 0)), False)
sketch13.addGeometry(Part.ArcOfCircle(Part.Circle(Vector(-57.7, -30, 0), Vector(0, 0, 1), 1.5), math.radians(180), math.radians(360)), False)
sketch13.addGeometry(Part.LineSegment(Vector(-56.2, -30, 0), Vector(-56.2, -16, 0)), False)
sketch13.addGeometry(Part.LineSegment(Vector(-44.2, -30, 0), Vector(-44.2, -16, 0)), False)
sketch13.addGeometry(Part.ArcOfCircle(Part.Circle(Vector(-45.7, -16, 0), Vector(0, 0, 1), 1.5), math.radians(0), math.radians(180)), False)
sketch13.addGeometry(Part.LineSegment(Vector(-47.2, -16, 0), Vector(-47.2, -30, 0)), False)
sketch13.addGeometry(Part.ArcOfCircle(Part.Circle(Vector(-45.7, -30, 0), Vector(0, 0, 1), 1.5), math.radians(180), math.radians(360)), False)
sketch13.addGeometry(Part.ArcOfCircle(Part.Circle(Vector(-77.9, -16, 0), Vector(0, 0, 1), 1.5), math.radians(0), math.radians(180)), False)
sketch13.addGeometry(Part.LineSegment(Vector(-79.4, -16, 0), Vector(-79.4, -30, 0)), False)
sketch13.addGeometry(Part.ArcOfCircle(Part.Circle(Vector(-77.9, -30, 0), Vector(0, 0, 1), 1.5), math.radians(180), math.radians(360)), False)
sketch13.addGeometry(Part.LineSegment(Vector(-76.4, -30, 0), Vector(-76.4, -16, 0)), False)
sketch13.addGeometry(Part.ArcOfCircle(Part.Circle(Vector(-117.9, -16, 0), Vector(0, 0, 1), 1.5), math.radians(0), math.radians(180)), False)
sketch13.addGeometry(Part.LineSegment(Vector(-119.4, -16, 0), Vector(-119.4, -30, 0)), False)
sketch13.addGeometry(Part.ArcOfCircle(Part.Circle(Vector(-117.9, -30, 0), Vector(0, 0, 1), 1.5), math.radians(180), math.radians(360)), False)
sketch13.addGeometry(Part.LineSegment(Vector(-116.4, -30, 0), Vector(-116.4, -16, 0)), False)
sketch13.addConstraint(Sketcher.Constraint("Tangent", 0, 2, 1, 1))
sketch13.addConstraint(Sketcher.Constraint("Tangent", 1, 2, 2, 1))
sketch13.addConstraint(Sketcher.Constraint("Tangent", 2, 2, 3, 1))
sketch13.addConstraint(Sketcher.Constraint("Tangent", 3, 2, 0, 1))
sketch13.addConstraint(Sketcher.Constraint("Tangent", 4, 2, 5, 1))
sketch13.addConstraint(Sketcher.Constraint("Tangent", 5, 2, 6, 1))
sketch13.addConstraint(Sketcher.Constraint("Tangent", 6, 2, 7, 1))
sketch13.addConstraint(Sketcher.Constraint("Tangent", 7, 2, 4, 1))
sketch13.addConstraint(Sketcher.Constraint("Tangent", 8, 2, 9, 1))
sketch13.addConstraint(Sketcher.Constraint("Tangent", 9, 2, 10, 1))
sketch13.addConstraint(Sketcher.Constraint("Tangent", 10, 2, 11, 1))
sketch13.addConstraint(Sketcher.Constraint("Tangent", 11, 2, 8, 1))
sketch13.addConstraint(Sketcher.Constraint("Tangent", 12, 2, 13, 1))
sketch13.addConstraint(Sketcher.Constraint("Tangent", 13, 2, 14, 1))
sketch13.addConstraint(Sketcher.Constraint("Tangent", 14, 2, 15, 1))
sketch13.addConstraint(Sketcher.Constraint("Tangent", 15, 2, 12, 1))
sketch13.addConstraint(Sketcher.Constraint("Vertical", 1))
sketch13.addConstraint(Sketcher.Constraint("Vertical", 3))
sketch13.addConstraint(Sketcher.Constraint("Vertical", 4))
sketch13.addConstraint(Sketcher.Constraint("Vertical", 6))
sketch13.addConstraint(Sketcher.Constraint("Vertical", 9))
sketch13.addConstraint(Sketcher.Constraint("Vertical", 11))
sketch13.addConstraint(Sketcher.Constraint("Vertical", 13))
sketch13.addConstraint(Sketcher.Constraint("Vertical", 15))
sketch13.addConstraint(Sketcher.Constraint("Equal", 2, 5))
sketch13.addConstraint(Sketcher.Constraint("Equal", 7, 8))
sketch13.addConstraint(Sketcher.Constraint("Equal", 10, 12))
sketch13.addConstraint(Sketcher.Constraint("Horizontal", 0, 3, 5, 3))
sketch13.addConstraint(Sketcher.Constraint("Horizontal", 2, 3, 7, 3))
sketch13.addConstraint(Sketcher.Constraint("Horizontal", 5, 3, 8, 3))
sketch13.addConstraint(Sketcher.Constraint("Horizontal", 7, 3, 10, 3))
sketch13.addConstraint(Sketcher.Constraint("Horizontal", 8, 3, 12, 3))
sketch13.addConstraint(Sketcher.Constraint("Horizontal", 10, 3, 14, 3))
sketch13.addConstraint(Sketcher.Constraint("Radius", 0, 1.5))
sketch13.addConstraint(Sketcher.Constraint("DistanceY", 1, 2, 1, 1, 14.0))
sketch13.addConstraint(Sketcher.Constraint("DistanceY", 0, 3, -1, 1, 16.0))
sketch13.addConstraint(Sketcher.Constraint("DistanceX", 0, 3, 5, 3, 12.0))
sketch13.addConstraint(Sketcher.Constraint("DistanceX", 12, 3, 8, 3, 40.0))
sketch13.addConstraint(Sketcher.Constraint("DistanceX", 8, 3, 0, 3, 20.25))
sketch13.addConstraint(Sketcher.Constraint("DistanceX", 0, 3, -1, 1, 57.664))
pocket6 = body.newObject("PartDesign::Pocket", "Pocket005")
pocket6.Profile = sketch13
pocket6.Length = 2

# Sketch on YZ plane
sketch14 = body.newObject("Sketcher::SketchObject", "Sketch013")
sketch14.AttachmentSupport = (doc.getObject("YZ_Plane"), [""])
sketch14.MapMode = "FlatFace"
sketch14.AttachmentOffset = App.Placement(Vector(0, 0, 12), App.Rotation())
sketch14.addGeometry(Part.Circle(Vector(-51.7, -18, 0), Vector(0, 0, 1), 2), False)
sketch14.addConstraint(Sketcher.Constraint("Diameter", 0, 4.0))
sketch14.addConstraint(Sketcher.Constraint("DistanceY", 0, 3, -1, 1, 18.0))
sketch14.addConstraint(Sketcher.Constraint("DistanceX", 0, 3, -1, 1, 51.664))
doc.recompute()
hole3 = body.newObject("PartDesign::Hole", "Hole002")
hole3.Profile = sketch14
hole3.ThreadType = "None"
hole3.Diameter = 4
hole3.DepthType = "Dimension"
hole3.Depth = 8
hole3.DrillPoint = "Angled"
hole3.DrillPointAngle = 118

doc.recompute()
